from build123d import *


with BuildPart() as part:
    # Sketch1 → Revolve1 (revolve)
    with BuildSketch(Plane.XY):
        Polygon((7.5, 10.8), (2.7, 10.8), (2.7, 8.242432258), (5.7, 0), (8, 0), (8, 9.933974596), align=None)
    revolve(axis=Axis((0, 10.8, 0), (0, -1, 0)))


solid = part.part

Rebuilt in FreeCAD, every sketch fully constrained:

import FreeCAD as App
import Part
import Sketcher
Q = App.Units.Quantity


def add_polygon(sketch, points):
    """Adds a closed chain of lines whose ends are joined by coincident constraints."""
    first, n = sketch.GeometryCount, len(points)
    for a, b in zip(points, points[1:] + points[:1]):
        sketch.addGeometry(Part.LineSegment(App.Vector(*a, 0), App.Vector(*b, 0)), False)
    for i in range(n):
        sketch.addConstraint(Sketcher.Constraint("Coincident", first + i, 2, first + (i + 1) % n, 1))

doc = App.newDocument("Part")
body = doc.addObject("PartDesign::Body", "Body")

sketch1 = body.newObject("Sketcher::SketchObject", "Sketch")
sketch1.AttachmentSupport = (doc.getObject("XY_Plane"), [""])
sketch1.MapMode = "FlatFace"
add_polygon(sketch1, [(7.5, 10.8), (2.7, 10.8), (2.7, 8.242432), (5.7, 0), (8, 0), (8, 9.933975)])
sketch1.addConstraint(Sketcher.Constraint("Horizontal", 0))
sketch1.addConstraint(Sketcher.Constraint("Vertical", 1))
sketch1.addConstraint(Sketcher.Constraint("Horizontal", 3))
sketch1.addConstraint(Sketcher.Constraint("Vertical", 4))
sketch1.addConstraint(Sketcher.Constraint("PointOnObject", 2, 2, -1))
sketch1.addConstraint(Sketcher.Constraint("Angle", 2, Q("-70 deg")))
sketch1.addConstraint(Sketcher.Constraint("Angle", 5, Q("120 deg")))
sketch1.addConstraint(Sketcher.Constraint("Distance", 5, Q("1 mm")))
sketch1.addConstraint(Sketcher.Constraint("DistanceX", 0, 2, 0, 1, Q("4.8 mm")))
sketch1.addConstraint(Sketcher.Constraint("DistanceX", 3, 1, 3, 2, Q("2.3 mm")))
sketch1.addConstraint(Sketcher.Constraint("DistanceX", -1, 1, 3, 2, Q("8 mm")))
sketch1.addConstraint(Sketcher.Constraint("DistanceY", -1, 1, 0, 2, Q("10.8 mm")))
revolution = body.newObject("PartDesign::Revolution", "Revolution")
revolution.Profile = sketch1
revolution.ReferenceAxis = (sketch1, ["V_Axis"])
revolution.Angle = 360

doc.recompute()
